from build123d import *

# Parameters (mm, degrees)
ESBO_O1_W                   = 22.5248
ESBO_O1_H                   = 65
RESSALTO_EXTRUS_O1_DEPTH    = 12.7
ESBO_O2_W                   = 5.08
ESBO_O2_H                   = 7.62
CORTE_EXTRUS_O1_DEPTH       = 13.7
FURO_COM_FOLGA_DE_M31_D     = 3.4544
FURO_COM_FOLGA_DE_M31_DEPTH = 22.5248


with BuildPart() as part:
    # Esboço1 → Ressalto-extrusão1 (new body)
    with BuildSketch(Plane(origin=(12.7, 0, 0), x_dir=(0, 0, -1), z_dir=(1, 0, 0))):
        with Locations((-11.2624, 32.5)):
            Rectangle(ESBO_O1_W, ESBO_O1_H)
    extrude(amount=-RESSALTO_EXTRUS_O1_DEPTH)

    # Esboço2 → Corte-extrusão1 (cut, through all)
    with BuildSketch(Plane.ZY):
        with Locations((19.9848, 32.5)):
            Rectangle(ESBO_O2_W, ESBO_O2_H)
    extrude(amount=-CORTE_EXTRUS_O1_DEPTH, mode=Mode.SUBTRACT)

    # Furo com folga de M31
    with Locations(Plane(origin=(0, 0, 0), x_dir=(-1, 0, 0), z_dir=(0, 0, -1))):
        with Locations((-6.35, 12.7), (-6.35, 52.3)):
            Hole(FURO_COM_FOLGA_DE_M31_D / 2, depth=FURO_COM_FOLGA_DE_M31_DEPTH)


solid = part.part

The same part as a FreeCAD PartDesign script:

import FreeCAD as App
import Part
import Sketcher

V = App.Vector
Q = App.Units.Quantity

doc = App.newDocument("Part")
body = doc.addObject("PartDesign::Body", "Body")

# Sketch on YZ plane
sketch1 = doc.addObject("Sketcher::SketchObject", "Sketch")
body.addObject(sketch1)
sketch1.AttachmentSupport = (doc.YZ_Plane, [""])
sketch1.MapMode = "FlatFace"
sketch1.AttachmentOffset = App.Placement(V(0, 0, 0.5 * 25.4), App.Rotation())
sketch1.addGeometry(Part.LineSegment(V(65, 23, 0), V(0, 23, 0)), False)
sketch1.addGeometry(Part.LineSegment(V(0, 23, 0), V(0, 0, 0)), False)
sketch1.addGeometry(Part.LineSegment(V(0, 0, 0), V(65, 0, 0)), False)
sketch1.addGeometry(Part.LineSegment(V(65, 0, 0), V(65, 23, 0)), False)
sketch1.addConstraint(Sketcher.Constraint("Coincident", 0, 2, 1, 1))
sketch1.addConstraint(Sketcher.Constraint("Coincident", 1, 2, 2, 1))
sketch1.addConstraint(Sketcher.Constraint("Coincident", 2, 2, 3, 1))
sketch1.addConstraint(Sketcher.Constraint("Coincident", 3, 2, 0, 1))
sketch1.addConstraint(Sketcher.Constraint("Horizontal", 0))
sketch1.addConstraint(Sketcher.Constraint("Vertical", 1))
sketch1.addConstraint(Sketcher.Constraint("Horizontal", 2))
sketch1.addConstraint(Sketcher.Constraint("Vertical", 3))
sketch1.addConstraint(Sketcher.Constraint("Coincident", 1, 2, -1, 1))
sketch1.addConstraint(Sketcher.Constraint("DistanceX", 0, 2, 0, 1, Q("65 mm")))
sketch1.addConstraint(Sketcher.Constraint("DistanceY", 1, 2, 1, 1, Q("22.5248 mm")))
pad1 = doc.addObject("PartDesign::Pad", "Pad")
body.addObject(pad1)
pad1.Profile = sketch1
pad1.Length = Q("0.5 in")
pad1.Reversed = True

# Sketch on YZ plane
sketch2 = doc.addObject("Sketcher::SketchObject", "Sketch001")
body.addObject(sketch2)
sketch2.AttachmentSupport = (doc.YZ_Plane, [""])
sketch2.MapMode = "FlatFace"
sketch2.addGeometry(Part.LineSegment(V(36, 17, 0), V(29, 17, 0)), False)
sketch2.addGeometry(Part.LineSegment(V(29, 17, 0), V(29, 23, 0)), False)
sketch2.addGeometry(Part.LineSegment(V(29, 23, 0), V(36, 23, 0)), False)
sketch2.addGeometry(Part.LineSegment(V(36, 23, 0), V(36, 17, 0)), False)
sketch2.addConstraint(Sketcher.Constraint("Coincident", 0, 2, 1, 1))
sketch2.addConstraint(Sketcher.Constraint("Coincident", 1, 2, 2, 1))
sketch2.addConstraint(Sketcher.Constraint("Coincident", 2, 2, 3, 1))
sketch2.addConstraint(Sketcher.Constraint("Coincident", 3, 2, 0, 1))
sketch2.addConstraint(Sketcher.Constraint("Horizontal", 0))
sketch2.addConstraint(Sketcher.Constraint("Vertical", 1))
sketch2.addConstraint(Sketcher.Constraint("Horizontal", 2))
sketch2.addConstraint(Sketcher.Constraint("Vertical", 3))
sketch2.addConstraint(Sketcher.Constraint("DistanceX", 0, 2, 0, 1, Q("0.3 in")))
sketch2.addConstraint(Sketcher.Constraint("DistanceY", 1, 1, 1, 2, Q("0.2 in")))
sketch2.addConstraint(Sketcher.Constraint("DistanceX", -1, 1, 0, 2, Q("28.69 mm")))
sketch2.addConstraint(Sketcher.Constraint("DistanceY", -1, 1, 0, 2, Q("17.4448 mm")))
pocket1 = doc.addObject("PartDesign::Pocket", "Pocket")
body.addObject(pocket1)
pocket1.Profile = sketch2
pocket1.Type = "ThroughAll"
pocket1.Reversed = True

# Sketch on XY plane
sketch3 = doc.addObject("Sketcher::SketchObject", "Sketch002")
body.addObject(sketch3)
sketch3.AttachmentSupport = (doc.XY_Plane, [""])
sketch3.MapMode = "FlatFace"
sketch3.addGeometry(Part.Circle(V(6.3, 12.7, 0), V(0, 0, 1), 1.7), False)
sketch3.addGeometry(Part.Circle(V(6.3, 52.3, 0), V(0, 0, 1), 1.7), False)
sketch3.addConstraint(Sketcher.Constraint("Equal", 0, 1))
sketch3.addConstraint(Sketcher.Constraint("Vertical", 0, 3, 1, 3))
sketch3.addConstraint(Sketcher.Constraint("Diameter", 0, Q("0.136 in")))
sketch3.addConstraint(Sketcher.Constraint("DistanceY", -1, 1, 0, 3, Q("0.5 in")))
sketch3.addConstraint(Sketcher.Constraint("DistanceX", -1, 1, 0, 3, Q("0.25 in")))
sketch3.addConstraint(Sketcher.Constraint("DistanceY", -1, 1, 1, 3, Q("52.3 mm")))
doc.recompute()
hole = doc.addObject("PartDesign::Hole", "Hole")
body.addObject(hole)
hole.Profile = sketch3
hole.ThreadType = "None"
hole.Diameter = Q("0.136 in")
hole.DepthType = "Dimension"
hole.Depth = 22.5248
hole.DrillPoint = "Flat"
hole.Reversed = True

doc.recompute()
